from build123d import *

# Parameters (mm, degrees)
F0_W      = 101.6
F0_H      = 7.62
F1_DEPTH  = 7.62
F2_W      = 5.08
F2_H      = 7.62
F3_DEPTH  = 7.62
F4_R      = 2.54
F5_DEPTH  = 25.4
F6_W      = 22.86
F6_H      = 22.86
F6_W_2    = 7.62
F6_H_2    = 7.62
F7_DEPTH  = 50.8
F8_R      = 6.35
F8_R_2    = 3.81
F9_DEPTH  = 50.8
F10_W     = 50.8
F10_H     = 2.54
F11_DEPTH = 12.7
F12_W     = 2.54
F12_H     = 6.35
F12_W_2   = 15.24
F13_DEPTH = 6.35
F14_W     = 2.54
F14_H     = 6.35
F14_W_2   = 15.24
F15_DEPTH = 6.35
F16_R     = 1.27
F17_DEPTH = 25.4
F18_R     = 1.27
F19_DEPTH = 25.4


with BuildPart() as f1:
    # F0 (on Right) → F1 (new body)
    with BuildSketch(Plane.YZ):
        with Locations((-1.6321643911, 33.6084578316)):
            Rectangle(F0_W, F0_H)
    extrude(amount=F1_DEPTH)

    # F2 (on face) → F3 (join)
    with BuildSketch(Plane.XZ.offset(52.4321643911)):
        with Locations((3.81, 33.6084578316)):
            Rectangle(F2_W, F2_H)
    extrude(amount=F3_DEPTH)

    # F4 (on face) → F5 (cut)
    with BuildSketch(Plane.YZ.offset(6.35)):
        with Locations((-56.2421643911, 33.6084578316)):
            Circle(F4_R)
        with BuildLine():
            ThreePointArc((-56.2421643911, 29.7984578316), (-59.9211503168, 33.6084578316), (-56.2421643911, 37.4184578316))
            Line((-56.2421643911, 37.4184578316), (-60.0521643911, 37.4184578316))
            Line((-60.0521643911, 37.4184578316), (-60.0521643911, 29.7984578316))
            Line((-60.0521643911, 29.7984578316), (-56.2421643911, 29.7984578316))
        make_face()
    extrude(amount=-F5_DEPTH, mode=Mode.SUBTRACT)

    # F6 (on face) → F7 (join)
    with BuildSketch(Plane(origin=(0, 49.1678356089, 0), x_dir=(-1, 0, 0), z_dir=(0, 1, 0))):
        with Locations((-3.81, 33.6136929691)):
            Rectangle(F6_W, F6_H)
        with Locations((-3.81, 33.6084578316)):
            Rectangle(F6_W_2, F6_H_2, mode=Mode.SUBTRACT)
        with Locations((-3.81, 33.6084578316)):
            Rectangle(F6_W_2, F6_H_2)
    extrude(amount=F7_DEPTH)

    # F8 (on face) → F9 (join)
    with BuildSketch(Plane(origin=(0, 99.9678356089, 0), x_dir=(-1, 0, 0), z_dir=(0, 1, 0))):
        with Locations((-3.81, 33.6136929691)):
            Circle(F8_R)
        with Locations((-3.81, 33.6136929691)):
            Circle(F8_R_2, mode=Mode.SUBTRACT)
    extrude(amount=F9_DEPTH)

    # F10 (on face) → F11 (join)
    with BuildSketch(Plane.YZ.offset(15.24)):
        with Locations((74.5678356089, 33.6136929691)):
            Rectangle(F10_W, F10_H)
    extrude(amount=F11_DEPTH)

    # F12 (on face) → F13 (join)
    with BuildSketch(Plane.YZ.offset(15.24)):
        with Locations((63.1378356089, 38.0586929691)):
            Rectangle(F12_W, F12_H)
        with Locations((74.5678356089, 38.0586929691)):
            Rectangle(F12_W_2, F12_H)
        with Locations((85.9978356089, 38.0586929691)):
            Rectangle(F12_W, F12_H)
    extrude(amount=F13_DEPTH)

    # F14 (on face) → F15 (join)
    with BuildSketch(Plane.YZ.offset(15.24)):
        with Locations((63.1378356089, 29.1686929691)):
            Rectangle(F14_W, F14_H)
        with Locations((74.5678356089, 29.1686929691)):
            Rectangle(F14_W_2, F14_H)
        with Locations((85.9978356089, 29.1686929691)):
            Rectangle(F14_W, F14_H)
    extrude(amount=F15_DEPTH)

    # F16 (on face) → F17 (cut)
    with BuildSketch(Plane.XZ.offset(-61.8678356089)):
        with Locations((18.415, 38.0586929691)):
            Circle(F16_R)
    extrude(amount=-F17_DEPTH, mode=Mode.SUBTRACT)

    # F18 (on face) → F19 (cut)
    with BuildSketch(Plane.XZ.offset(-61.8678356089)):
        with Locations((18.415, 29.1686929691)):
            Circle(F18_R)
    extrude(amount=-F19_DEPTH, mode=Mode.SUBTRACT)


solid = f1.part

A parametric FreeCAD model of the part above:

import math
import FreeCAD as App
import Part
import Sketcher

V = App.Vector
Q = App.Units.Quantity


def add_polygon(sketch, points):
    """Adds a closed chain of lines whose ends are joined by coincident constraints."""
    first, n = sketch.GeometryCount, len(points)
    for a, b in zip(points, points[1:] + points[:1]):
        sketch.addGeometry(Part.LineSegment(App.Vector(*a, 0), App.Vector(*b, 0)), False)
    for i in range(n):
        sketch.addConstraint(Sketcher.Constraint("Coincident", first + i, 2, first + (i + 1) % n, 1))

doc = App.newDocument("Part")
body = doc.addObject("PartDesign::Body", "Body")

# Sketch on YZ plane
sketch1 = body.newObject("Sketcher::SketchObject", "Sketch")
sketch1.AttachmentSupport = (doc.getObject("YZ_Plane"), [""])
sketch1.MapMode = "FlatFace"
add_polygon(sketch1, [(-52, 37), (-52, 30), (49, 30), (49, 37)])  # lines 0-3
sketch1.addConstraint(Sketcher.Constraint("Vertical", 0))
sketch1.addConstraint(Sketcher.Constraint("Horizontal", 1))
sketch1.addConstraint(Sketcher.Constraint("Vertical", 2))
sketch1.addConstraint(Sketcher.Constraint("Horizontal", 3))
sketch1.addConstraint(Sketcher.Constraint("DistanceX", 1, 1, 1, 2, Q("4 in")))
sketch1.addConstraint(Sketcher.Constraint("DistanceY", 0, 2, 0, 1, Q("0.3 in")))
sketch1.addConstraint(Sketcher.Constraint("DistanceX", 0, 2, -1, 1, 52.432164))
sketch1.addConstraint(Sketcher.Constraint("DistanceY", -1, 1, 0, 2, 29.798458))
pad1 = body.newObject("PartDesign::Pad", "Pad")
pad1.Profile = sketch1
pad1.Length = Q("0.3 in")

# Sketch on XZ plane
sketch2 = body.newObject("Sketcher::SketchObject", "Sketch001")
sketch2.AttachmentSupport = (doc.getObject("XZ_Plane"), [""])
sketch2.MapMode = "FlatFace"
sketch2.AttachmentOffset = App.Placement(V(0, 0, 52.432164), App.Rotation())
add_polygon(sketch2, [(1, 37), (1, 30), (6, 30), (6, 37)])  # lines 0-3
sketch2.addConstraint(Sketcher.Constraint("Vertical", 0))
sketch2.addConstraint(Sketcher.Constraint("Horizontal", 1))
sketch2.addConstraint(Sketcher.Constraint("Vertical", 2))
sketch2.addConstraint(Sketcher.Constraint("Horizontal", 3))
sketch2.addConstraint(Sketcher.Constraint("DistanceX", 1, 1, 1, 2, Q("0.2 in")))
sketch2.addConstraint(Sketcher.Constraint("DistanceY", 0, 2, 0, 1, Q("0.3 in")))
sketch2.addConstraint(Sketcher.Constraint("DistanceX", -1, 1, 0, 2, Q("0.05 in")))
sketch2.addConstraint(Sketcher.Constraint("DistanceY", -1, 1, 0, 2, 29.798458))
pad2 = body.newObject("PartDesign::Pad", "Pad001")
pad2.Profile = sketch2
pad2.Length = Q("0.3 in")

# Sketch on YZ plane
sketch3 = body.newObject("Sketcher::SketchObject", "Sketch002")
sketch3.AttachmentSupport = (doc.getObject("YZ_Plane"), [""])
sketch3.MapMode = "FlatFace"
sketch3.AttachmentOffset = App.Placement(V(0, 0, 0.25 * 25.4), App.Rotation())
sketch3.addGeometry(Part.Circle(V(-56.2, 33.6, 0), V(0, 0, 1), 2.5), False)
sketch3.addGeometry(Part.ArcOfCircle(Part.Circle(V(-56.1, 33.6, 0), V(0, 0, 1), 3.8), math.radians(92), math.radians(268)), False)
sketch3.addGeometry(Part.LineSegment(V(-56.2, 37.4, 0), V(-60.1, 37.4, 0)), False)
sketch3.addGeometry(Part.LineSegment(V(-60.1, 37.4, 0), V(-60.1, 29.8, 0)), False)
sketch3.addGeometry(Part.LineSegment(V(-60.1, 29.8, 0), V(-56.2, 29.8, 0)), False)
sketch3.addConstraint(Sketcher.Constraint("Coincident", 1, 1, 2, 1))
sketch3.addConstraint(Sketcher.Constraint("Coincident", 2, 2, 3, 1))
sketch3.addConstraint(Sketcher.Constraint("Coincident", 3, 2, 4, 1))
sketch3.addConstraint(Sketcher.Constraint("Coincident", 4, 2, 1, 2))
sketch3.addConstraint(Sketcher.Constraint("Horizontal", 2))
sketch3.addConstraint(Sketcher.Constraint("Vertical", 3))
sketch3.addConstraint(Sketcher.Constraint("Horizontal", 4))
sketch3.addConstraint(Sketcher.Constraint("Horizontal", 0, 3, 1, 3))
sketch3.addConstraint(Sketcher.Constraint("Vertical", 0, 3, 1, 1))
sketch3.addConstraint(Sketcher.Constraint("Vertical", 1, 1, 4, 2))
sketch3.addConstraint(Sketcher.Constraint("Diameter", 0, Q("0.2 in")))
sketch3.addConstraint(Sketcher.Constraint("DistanceY", 3, 2, 3, 1, Q("0.3 in")))
sketch3.addConstraint(Sketcher.Constraint("DistanceX", 2, 2, 2, 1, Q("0.15 in")))
sketch3.addConstraint(Sketcher.Constraint("Radius", 1, 3.812333))
sketch3.addConstraint(Sketcher.Constraint("DistanceX", 0, 3, -1, 1, 56.242164))
sketch3.addConstraint(Sketcher.Constraint("DistanceY", -1, 1, 0, 3, 33.608458))
pocket1 = body.newObject("PartDesign::Pocket", "Pocket")
pocket1.Profile = sketch3
pocket1.Length = Q("1 in")

# Sketch on XZ plane
sketch4 = body.newObject("Sketcher::SketchObject", "Sketch003")
sketch4.AttachmentSupport = (doc.getObject("XZ_Plane"), [""])
sketch4.MapMode = "FlatFace"
sketch4.AttachmentOffset = App.Placement(V(0, 0, -49.167836), App.Rotation())
add_polygon(sketch4, [(15, 45), (15, 22), (-8, 22), (-8, 45)])  # lines 0-3
sketch4.addConstraint(Sketcher.Constraint("Vertical", 0))
sketch4.addConstraint(Sketcher.Constraint("Horizontal", 1))
sketch4.addConstraint(Sketcher.Constraint("Vertical", 2))
sketch4.addConstraint(Sketcher.Constraint("Horizontal", 3))
sketch4.addConstraint(Sketcher.Constraint("Equal", 3, 0))
sketch4.addConstraint(Sketcher.Constraint("DistanceX", 1, 2, 1, 1, Q("0.9 in")))
sketch4.addConstraint(Sketcher.Constraint("DistanceX", -1, 1, 0, 2, Q("0.6 in")))
sketch4.addConstraint(Sketcher.Constraint("DistanceY", -1, 1, 0, 2, 22.183693))
pad3 = body.newObject("PartDesign::Pad", "Pad002")
pad3.Profile = sketch4
pad3.Length = Q("2 in")
pad3.Reversed = True

# Sketch on XZ plane
sketch5 = body.newObject("Sketcher::SketchObject", "Sketch004")
sketch5.AttachmentSupport = (doc.getObject("XZ_Plane"), [""])
sketch5.MapMode = "FlatFace"
sketch5.AttachmentOffset = App.Placement(V(0, 0, -99.967836), App.Rotation())
sketch5.addGeometry(Part.Circle(V(3.8, 33.6, 0), V(0, 0, 1), 6.3), False)
sketch5.addGeometry(Part.Circle(V(3.8, 33.6, 0), V(0, 0, 1), 3.8), False)
sketch5.addConstraint(Sketcher.Constraint("Coincident", 1, 3, 0, 3))
sketch5.addConstraint(Sketcher.Constraint("Diameter", 0, Q("0.5 in")))
sketch5.addConstraint(Sketcher.Constraint("Diameter", 1, Q("0.3 in")))
sketch5.addConstraint(Sketcher.Constraint("DistanceX", -1, 1, 0, 3, Q("0.15 in")))
sketch5.addConstraint(Sketcher.Constraint("DistanceY", -1, 1, 0, 3, 33.613693))
pad4 = body.newObject("PartDesign::Pad", "Pad003")
pad4.Profile = sketch5
pad4.Length = Q("2 in")
pad4.Reversed = True

# Sketch on YZ plane
sketch6 = body.newObject("Sketcher::SketchObject", "Sketch005")
sketch6.AttachmentSupport = (doc.getObject("YZ_Plane"), [""])
sketch6.MapMode = "FlatFace"
sketch6.AttachmentOffset = App.Placement(V(0, 0, 0.6 * 25.4), App.Rotation())
add_polygon(sketch6, [(49.2, 34.9), (49.2, 32.3), (100, 32.3), (100, 34.9)])  # lines 0-3
sketch6.addConstraint(Sketcher.Constraint("Vertical", 0))
sketch6.addConstraint(Sketcher.Constraint("Horizontal", 1))
sketch6.addConstraint(Sketcher.Constraint("Vertical", 2))
sketch6.addConstraint(Sketcher.Constraint("Horizontal", 3))
sketch6.addConstraint(Sketcher.Constraint("DistanceX", 1, 1, 1, 2, Q("2 in")))
sketch6.addConstraint(Sketcher.Constraint("DistanceY", 0, 2, 0, 1, Q("0.1 in")))
sketch6.addConstraint(Sketcher.Constraint("DistanceX", -1, 1, 0, 2, 49.167836))
sketch6.addConstraint(Sketcher.Constraint("DistanceY", -1, 1, 0, 2, 32.343693))
pad5 = body.newObject("PartDesign::Pad", "Pad004")
pad5.Profile = sketch6
pad5.Length = Q("0.5 in")

# Sketch on YZ plane
sketch7 = body.newObject("Sketcher::SketchObject", "Sketch006")
sketch7.AttachmentSupport = (doc.getObject("YZ_Plane"), [""])
sketch7.MapMode = "FlatFace"
sketch7.AttachmentOffset = App.Placement(V(0, 0, 0.6 * 25.4), App.Rotation())
add_polygon(sketch7, [(61.9, 41.2), (61.9, 34.9), (64.4, 34.9), (64.4, 41.2)])  # lines 0-3
add_polygon(sketch7, [(66.9, 41.2), (66.9, 34.9), (82.2, 34.9), (82.2, 41.2)])  # lines 4-7
add_polygon(sketch7, [(84.7, 41.2), (84.7, 34.9), (87.3, 34.9), (87.3, 41.2)])  # lines 8-11
sketch7.addConstraint(Sketcher.Constraint("Vertical", 0))
sketch7.addConstraint(Sketcher.Constraint("Horizontal", 1))
sketch7.addConstraint(Sketcher.Constraint("Vertical", 2))
sketch7.addConstraint(Sketcher.Constraint("Horizontal", 3))
sketch7.addConstraint(Sketcher.Constraint("Vertical", 4))
sketch7.addConstraint(Sketcher.Constraint("Horizontal", 5))
sketch7.addConstraint(Sketcher.Constraint("Vertical", 6))
sketch7.addConstraint(Sketcher.Constraint("Horizontal", 7))
sketch7.addConstraint(Sketcher.Constraint("Vertical", 8))
sketch7.addConstraint(Sketcher.Constraint("Horizontal", 9))
sketch7.addConstraint(Sketcher.Constraint("Vertical", 10))
sketch7.addConstraint(Sketcher.Constraint("Horizontal", 11))
sketch7.addConstraint(Sketcher.Constraint("Horizontal", 1, 2, 4, 2))
sketch7.addConstraint(Sketcher.Constraint("Horizontal", 3, 2, 6, 2))
sketch7.addConstraint(Sketcher.Constraint("Horizontal", 5, 2, 8, 2))
sketch7.addConstraint(Sketcher.Constraint("Horizontal", 7, 2, 10, 2))
sketch7.addConstraint(Sketcher.Constraint("Equal", 3, 9))
sketch7.addConstraint(Sketcher.Constraint("DistanceX", 1, 1, 1, 2, Q("0.1 in")))
sketch7.addConstraint(Sketcher.Constraint("DistanceX", 5, 1, 5, 2, Q("0.6 in")))
sketch7.addConstraint(Sketcher.Constraint("DistanceY", 0, 2, 0, 1, Q("0.25 in")))
sketch7.addConstraint(Sketcher.Constraint("DistanceX", 1, 2, 4, 2, Q("0.1 in")))
sketch7.addConstraint(Sketcher.Constraint("DistanceX", 5, 2, 8, 2, Q("0.1 in")))
sketch7.addConstraint(Sketcher.Constraint("DistanceX", -1, 1, 0, 2, 61.867836))
sketch7.addConstraint(Sketcher.Constraint("DistanceY", -1, 1, 0, 2, 34.883693))
pad6 = body.newObject("PartDesign::Pad", "Pad005")
pad6.Profile = sketch7
pad6.Length = Q("0.25 in")

# Sketch on YZ plane
sketch8 = body.newObject("Sketcher::SketchObject", "Sketch007")
sketch8.AttachmentSupport = (doc.getObject("YZ_Plane"), [""])
sketch8.MapMode = "FlatFace"
sketch8.AttachmentOffset = App.Placement(V(0, 0, 0.6 * 25.4), App.Rotation())
add_polygon(sketch8, [(61.9, 32.3), (61.9, 26), (64.4, 26), (64.4, 32.3)])  # lines 0-3
add_polygon(sketch8, [(66.9, 32.3), (66.9, 26), (82.2, 26), (82.2, 32.3)])  # lines 4-7
add_polygon(sketch8, [(84.7, 32.3), (84.7, 26), (87.3, 26), (87.3, 32.3)])  # lines 8-11
sketch8.addConstraint(Sketcher.Constraint("Vertical", 0))
sketch8.addConstraint(Sketcher.Constraint("Horizontal", 1))
sketch8.addConstraint(Sketcher.Constraint("Vertical", 2))
sketch8.addConstraint(Sketcher.Constraint("Horizontal", 3))
sketch8.addConstraint(Sketcher.Constraint("Vertical", 4))
sketch8.addConstraint(Sketcher.Constraint("Horizontal", 5))
sketch8.addConstraint(Sketcher.Constraint("Vertical", 6))
sketch8.addConstraint(Sketcher.Constraint("Horizontal", 7))
sketch8.addConstraint(Sketcher.Constraint("Vertical", 8))
sketch8.addConstraint(Sketcher.Constraint("Horizontal", 9))
sketch8.addConstraint(Sketcher.Constraint("Vertical", 10))
sketch8.addConstraint(Sketcher.Constraint("Horizontal", 11))
sketch8.addConstraint(Sketcher.Constraint("Horizontal", 1, 2, 4, 2))
sketch8.addConstraint(Sketcher.Constraint("Horizontal", 3, 2, 6, 2))
sketch8.addConstraint(Sketcher.Constraint("Horizontal", 5, 2, 8, 2))
sketch8.addConstraint(Sketcher.Constraint("Horizontal", 7, 2, 10, 2))
sketch8.addConstraint(Sketcher.Constraint("Equal", 3, 9))
sketch8.addConstraint(Sketcher.Constraint("DistanceX", 1, 1, 1, 2, Q("0.1 in")))
sketch8.addConstraint(Sketcher.Constraint("DistanceX", 5, 1, 5, 2, Q("0.6 in")))
sketch8.addConstraint(Sketcher.Constraint("DistanceY", 0, 2, 0, 1, Q("0.25 in")))
sketch8.addConstraint(Sketcher.Constraint("DistanceX", 1, 2, 4, 2, Q("0.1 in")))
sketch8.addConstraint(Sketcher.Constraint("DistanceX", 5, 2, 8, 2, Q("0.1 in")))
sketch8.addConstraint(Sketcher.Constraint("DistanceX", -1, 1, 0, 2, 61.867836))
sketch8.addConstraint(Sketcher.Constraint("DistanceY", -1, 1, 0, 2, 25.993693))
pad7 = body.newObject("PartDesign::Pad", "Pad006")
pad7.Profile = sketch8
pad7.Length = Q("0.25 in")

# Sketch on XZ plane
sketch9 = body.newObject("Sketcher::SketchObject", "Sketch008")
sketch9.AttachmentSupport = (doc.getObject("XZ_Plane"), [""])
sketch9.MapMode = "FlatFace"
sketch9.AttachmentOffset = App.Placement(V(0, 0, -61.867836), App.Rotation())
sketch9.addGeometry(Part.Circle(V(18.4, 38.1, 0), V(0, 0, 1), 1.3), False)
sketch9.addConstraint(Sketcher.Constraint("Diameter", 0, Q("0.1 in")))
sketch9.addConstraint(Sketcher.Constraint("DistanceX", -1, 1, 0, 3, Q("0.725 in")))
sketch9.addConstraint(Sketcher.Constraint("DistanceY", -1, 1, 0, 3, 38.058693))
pocket2 = body.newObject("PartDesign::Pocket", "Pocket001")
pocket2.Profile = sketch9
pocket2.Length = Q("1 in")

# Sketch on XZ plane
sketch10 = body.newObject("Sketcher::SketchObject", "Sketch009")
sketch10.AttachmentSupport = (doc.getObject("XZ_Plane"), [""])
sketch10.MapMode = "FlatFace"
sketch10.AttachmentOffset = App.Placement(V(0, 0, -61.867836), App.Rotation())
sketch10.addGeometry(Part.Circle(V(18.4, 29.2, 0), V(0, 0, 1), 1.3), False)
sketch10.addConstraint(Sketcher.Constraint("Diameter", 0, Q("0.1 in")))
sketch10.addConstraint(Sketcher.Constraint("DistanceX", -1, 1, 0, 3, Q("0.725 in")))
sketch10.addConstraint(Sketcher.Constraint("DistanceY", -1, 1, 0, 3, 29.168693))
pocket3 = body.newObject("PartDesign::Pocket", "Pocket002")
pocket3.Profile = sketch10
pocket3.Length = Q("1 in")

doc.recompute()
